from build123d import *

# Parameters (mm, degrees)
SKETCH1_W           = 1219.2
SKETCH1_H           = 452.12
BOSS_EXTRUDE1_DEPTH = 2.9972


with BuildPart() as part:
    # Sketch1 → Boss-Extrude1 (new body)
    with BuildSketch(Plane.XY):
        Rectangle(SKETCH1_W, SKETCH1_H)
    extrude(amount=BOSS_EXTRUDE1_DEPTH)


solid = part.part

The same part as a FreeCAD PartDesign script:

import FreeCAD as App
import Part
import Sketcher

V = App.Vector
Q = App.Units.Quantity


def add_polygon(sketch, points):
    """Adds a closed chain of lines whose ends are joined by coincident constraints."""
    first, n = sketch.GeometryCount, len(points)
    for a, b in zip(points, points[1:] + points[:1]):
        sketch.addGeometry(Part.LineSegment(App.Vector(*a, 0), App.Vector(*b, 0)), False)
    for i in range(n):
        sketch.addConstraint(Sketcher.Constraint("Coincident", first + i, 2, first + (i + 1) % n, 1))

doc = App.newDocument("Part")
body = doc.addObject("PartDesign::Body", "Body")

# Sketch on XY plane
sketch1 = body.newObject("Sketcher::SketchObject", "Sketch")
sketch1.AttachmentSupport = (doc.getObject("XY_Plane"), [""])
sketch1.MapMode = "FlatFace"
add_polygon(sketch1, [(-609.6, 226.06), (-609.6, -226.06), (609.6, -226.06), (609.6, 226.06)])  # lines 0-3
sketch1.addConstraint([
    Sketcher.Constraint("Vertical", 0),
    Sketcher.Constraint("Horizontal", 1),
    Sketcher.Constraint("Vertical", 2),
    Sketcher.Constraint("Horizontal", 3),
    Sketcher.Constraint("Symmetric", 0, 2, 2, 2, -1, 1),
    Sketcher.Constraint("DistanceX", 1, 1, 1, 2, Q("48 in")),
    Sketcher.Constraint("DistanceY", 0, 2, 0, 1, Q("17.8 in")),
])
pad1 = body.newObject("PartDesign::Pad", "Pad")
pad1.Profile = sketch1
pad1.Length = Q("0.118 in")

doc.recompute()
